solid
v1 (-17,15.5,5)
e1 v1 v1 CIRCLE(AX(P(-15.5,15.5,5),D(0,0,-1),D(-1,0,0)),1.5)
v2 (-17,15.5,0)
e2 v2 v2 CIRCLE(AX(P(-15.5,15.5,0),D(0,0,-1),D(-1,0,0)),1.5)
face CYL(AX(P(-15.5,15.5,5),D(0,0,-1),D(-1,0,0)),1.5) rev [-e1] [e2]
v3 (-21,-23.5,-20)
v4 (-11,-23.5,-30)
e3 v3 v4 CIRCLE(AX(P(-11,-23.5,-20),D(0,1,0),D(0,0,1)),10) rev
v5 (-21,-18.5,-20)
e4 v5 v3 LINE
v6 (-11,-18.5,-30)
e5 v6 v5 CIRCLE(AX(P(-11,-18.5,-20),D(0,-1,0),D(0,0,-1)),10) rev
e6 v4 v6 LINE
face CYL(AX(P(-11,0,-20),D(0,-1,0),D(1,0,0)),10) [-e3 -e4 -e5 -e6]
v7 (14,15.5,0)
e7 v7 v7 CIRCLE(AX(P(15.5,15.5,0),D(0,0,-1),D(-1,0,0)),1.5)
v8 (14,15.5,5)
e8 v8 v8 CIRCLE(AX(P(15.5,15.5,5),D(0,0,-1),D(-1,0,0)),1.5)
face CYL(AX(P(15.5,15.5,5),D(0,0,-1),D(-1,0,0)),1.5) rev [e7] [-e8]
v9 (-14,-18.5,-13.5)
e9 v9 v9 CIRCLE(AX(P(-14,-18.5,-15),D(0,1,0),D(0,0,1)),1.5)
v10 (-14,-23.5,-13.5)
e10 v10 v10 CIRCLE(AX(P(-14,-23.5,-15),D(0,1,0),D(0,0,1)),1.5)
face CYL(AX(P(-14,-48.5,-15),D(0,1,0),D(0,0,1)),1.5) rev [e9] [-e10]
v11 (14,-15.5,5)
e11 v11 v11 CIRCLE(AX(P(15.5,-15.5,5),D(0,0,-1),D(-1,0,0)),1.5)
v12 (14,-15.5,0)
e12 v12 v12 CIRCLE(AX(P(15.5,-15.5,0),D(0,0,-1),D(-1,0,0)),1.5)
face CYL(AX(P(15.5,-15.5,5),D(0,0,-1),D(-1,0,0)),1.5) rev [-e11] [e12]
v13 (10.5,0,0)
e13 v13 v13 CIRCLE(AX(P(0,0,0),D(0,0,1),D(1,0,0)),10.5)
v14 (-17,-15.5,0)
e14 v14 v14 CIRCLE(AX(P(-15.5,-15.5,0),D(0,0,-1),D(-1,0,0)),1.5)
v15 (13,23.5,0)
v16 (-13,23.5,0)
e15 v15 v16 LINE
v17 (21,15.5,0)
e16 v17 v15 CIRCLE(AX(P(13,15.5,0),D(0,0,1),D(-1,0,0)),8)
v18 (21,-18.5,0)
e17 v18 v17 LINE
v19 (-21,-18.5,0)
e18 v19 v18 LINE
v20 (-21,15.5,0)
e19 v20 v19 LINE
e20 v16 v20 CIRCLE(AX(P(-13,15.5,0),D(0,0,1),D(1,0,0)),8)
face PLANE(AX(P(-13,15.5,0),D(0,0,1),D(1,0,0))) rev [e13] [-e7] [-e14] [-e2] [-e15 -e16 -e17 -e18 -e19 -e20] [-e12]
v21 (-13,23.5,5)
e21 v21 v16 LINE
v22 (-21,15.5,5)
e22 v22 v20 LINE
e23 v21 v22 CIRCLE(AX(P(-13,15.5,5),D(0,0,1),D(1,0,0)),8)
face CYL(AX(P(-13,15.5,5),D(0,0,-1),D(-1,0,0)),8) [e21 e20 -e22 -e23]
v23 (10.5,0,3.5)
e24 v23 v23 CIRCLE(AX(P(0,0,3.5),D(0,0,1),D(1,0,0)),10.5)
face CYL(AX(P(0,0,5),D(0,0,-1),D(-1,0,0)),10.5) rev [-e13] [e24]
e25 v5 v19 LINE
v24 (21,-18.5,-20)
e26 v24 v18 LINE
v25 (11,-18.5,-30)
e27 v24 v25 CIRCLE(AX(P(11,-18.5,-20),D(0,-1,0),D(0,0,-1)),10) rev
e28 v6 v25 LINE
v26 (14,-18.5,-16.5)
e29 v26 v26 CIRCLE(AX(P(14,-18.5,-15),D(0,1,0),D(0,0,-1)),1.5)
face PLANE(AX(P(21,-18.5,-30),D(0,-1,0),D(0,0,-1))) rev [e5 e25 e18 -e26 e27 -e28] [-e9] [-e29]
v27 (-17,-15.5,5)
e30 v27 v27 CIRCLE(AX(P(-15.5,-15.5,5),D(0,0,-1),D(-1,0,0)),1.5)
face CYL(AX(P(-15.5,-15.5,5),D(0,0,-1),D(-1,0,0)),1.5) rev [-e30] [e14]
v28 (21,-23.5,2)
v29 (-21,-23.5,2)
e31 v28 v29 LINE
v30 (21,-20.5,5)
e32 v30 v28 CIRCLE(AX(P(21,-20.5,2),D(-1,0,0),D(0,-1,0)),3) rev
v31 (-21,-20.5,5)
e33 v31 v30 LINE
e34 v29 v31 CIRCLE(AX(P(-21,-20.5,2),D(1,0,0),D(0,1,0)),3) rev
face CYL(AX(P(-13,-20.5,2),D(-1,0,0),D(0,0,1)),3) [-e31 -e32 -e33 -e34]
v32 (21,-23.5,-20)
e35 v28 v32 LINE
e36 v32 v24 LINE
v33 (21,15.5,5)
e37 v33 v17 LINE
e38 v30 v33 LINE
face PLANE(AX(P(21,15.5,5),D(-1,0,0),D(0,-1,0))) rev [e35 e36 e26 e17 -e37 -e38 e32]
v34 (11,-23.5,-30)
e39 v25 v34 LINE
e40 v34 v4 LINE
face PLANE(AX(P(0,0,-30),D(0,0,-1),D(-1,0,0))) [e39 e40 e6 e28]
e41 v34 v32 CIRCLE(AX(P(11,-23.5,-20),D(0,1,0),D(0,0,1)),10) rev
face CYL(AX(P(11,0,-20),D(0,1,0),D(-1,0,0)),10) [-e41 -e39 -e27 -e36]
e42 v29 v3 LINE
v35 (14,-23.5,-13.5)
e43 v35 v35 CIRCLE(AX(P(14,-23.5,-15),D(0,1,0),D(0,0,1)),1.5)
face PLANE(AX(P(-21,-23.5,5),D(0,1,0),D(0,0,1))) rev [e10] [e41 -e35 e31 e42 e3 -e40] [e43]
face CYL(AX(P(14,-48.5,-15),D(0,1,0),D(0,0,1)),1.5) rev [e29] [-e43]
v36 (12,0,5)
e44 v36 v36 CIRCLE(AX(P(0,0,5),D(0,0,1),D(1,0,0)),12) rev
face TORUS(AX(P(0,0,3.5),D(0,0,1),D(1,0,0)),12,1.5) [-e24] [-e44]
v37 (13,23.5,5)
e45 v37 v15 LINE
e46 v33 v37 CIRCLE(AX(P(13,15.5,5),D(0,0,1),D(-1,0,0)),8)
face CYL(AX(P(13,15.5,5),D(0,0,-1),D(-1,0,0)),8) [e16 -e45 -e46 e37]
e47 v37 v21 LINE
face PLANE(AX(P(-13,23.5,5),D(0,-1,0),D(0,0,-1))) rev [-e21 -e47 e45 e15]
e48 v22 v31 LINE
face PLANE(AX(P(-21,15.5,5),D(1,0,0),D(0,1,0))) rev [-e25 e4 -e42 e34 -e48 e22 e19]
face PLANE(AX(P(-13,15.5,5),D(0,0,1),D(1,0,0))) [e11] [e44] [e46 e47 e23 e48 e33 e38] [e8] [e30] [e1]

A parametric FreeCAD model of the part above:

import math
import FreeCAD as App
import Part
import Sketcher

V = App.Vector
Q = App.Units.Quantity


def edges_at(feature, points):
    """Names of the edges that pass closest to the given points."""
    edges = feature.Shape.Edges
    near = lambda p: min(range(len(edges)), key=lambda i: edges[i].distToShape(Part.Vertex(*p))[0])
    return sorted({f"Edge{near(p) + 1}" for p in points})

doc = App.newDocument("Part")
params = doc.addObject("Spreadsheet::Sheet", "Params")
for row, (alias, value) in enumerate([
    ("sketch1_diameter", "21 mm"),
    ("sketch1_radius", "8 mm"),
    ("sketch1_width", "26 mm"),
    ("sketch1_height", "39 mm"),
    ("pad1_length", "5 mm"),
    ("sketch2_width", "42 mm"),
    ("sketch2_height", "5 mm"),
    ("pad2_length", "30 mm"),
    ("sketch3_diameter", "3 mm"),
    ("pocket1_length", "30 mm"),
    ("fillet_radius", "10 mm"),
    ("fillet2_radius", "3 mm"),
    ("sketch4_diameter", "3 mm"),
    ("fillet3_radius", "1.5 mm"),
], start=1):
    params.set(f"A{row}", alias)
    params.set(f"B{row}", "=" + value)
    params.setAlias(f"B{row}", alias)

body = doc.addObject("PartDesign::Body", "Body")

sketch1 = body.newObject("Sketcher::SketchObject", "Sketch")
sketch1.AttachmentSupport = (doc.getObject("XY_Plane"), [""])
sketch1.MapMode = "FlatFace"
sketch1.addGeometry(Part.LineSegment(V(13, 23.5, 0), V(-13, 23.5, 0)), False)
sketch1.addGeometry(Part.ArcOfCircle(Part.Circle(V(-13, 15.5, 0), V(0, 0, 1), 8), math.radians(90), math.radians(180)), False)
sketch1.addGeometry(Part.LineSegment(V(-21, 15.5, 0), V(-21, -23.5, 0)), False)
sketch1.addGeometry(Part.LineSegment(V(-21, -23.5, 0), V(21, -23.5, 0)), False)
sketch1.addGeometry(Part.LineSegment(V(21, -23.5, 0), V(21, 15.5, 0)), False)
sketch1.addGeometry(Part.ArcOfCircle(Part.Circle(V(13, 15.5, 0), V(0, 0, 1), 8), math.radians(0), math.radians(90)), False)
sketch1.addGeometry(Part.Circle(V(0, 0, 0), V(0, 0, 1), 10.5), False)
sketch1.addConstraint(Sketcher.Constraint("Tangent", 0, 2, 1, 1))
sketch1.addConstraint(Sketcher.Constraint("Tangent", 1, 2, 2, 1))
sketch1.addConstraint(Sketcher.Constraint("Coincident", 2, 2, 3, 1))
sketch1.addConstraint(Sketcher.Constraint("Coincident", 3, 2, 4, 1))
sketch1.addConstraint(Sketcher.Constraint("Tangent", 4, 2, 5, 1))
sketch1.addConstraint(Sketcher.Constraint("Tangent", 5, 2, 0, 1))
sketch1.addConstraint(Sketcher.Constraint("Horizontal", 0))
sketch1.addConstraint(Sketcher.Constraint("Vertical", 2))
sketch1.addConstraint(Sketcher.Constraint("Horizontal", 3))
sketch1.addConstraint(Sketcher.Constraint("Vertical", 4))
sketch1.addConstraint(Sketcher.Constraint("Coincident", 6, 3, -1, 1))
sketch1.addConstraint(Sketcher.Constraint("Equal", 1, 5))
sketch1.addConstraint(Sketcher.Constraint("Diameter", 6, Q("21 mm")))
sketch1.addConstraint(Sketcher.Constraint("Radius", 1, Q("8 mm")))
sketch1.addConstraint(Sketcher.Constraint("DistanceX", 0, 2, 0, 1, Q("26 mm")))
sketch1.addConstraint(Sketcher.Constraint("DistanceY", 2, 2, 2, 1, Q("39 mm")))
sketch1.addConstraint(Sketcher.Constraint("DistanceX", 1, 3, -1, 1, Q("13 mm")))
sketch1.addConstraint(Sketcher.Constraint("DistanceY", -1, 1, 1, 3, Q("15.5 mm")))
sketch1.setExpression("Constraints[12]", "Params.sketch1_diameter")
sketch1.setExpression("Constraints[13]", "Params.sketch1_radius")
sketch1.setExpression("Constraints[14]", "Params.sketch1_width")
sketch1.setExpression("Constraints[15]", "Params.sketch1_height")
pad1 = body.newObject("PartDesign::Pad", "Pad")
pad1.Profile = sketch1
pad1.setExpression("Length", "Params.pad1_length")

sketch2 = body.newObject("Sketcher::SketchObject", "Sketch001")
sketch2.AttachmentSupport = (doc.getObject("XY_Plane"), [""])
sketch2.MapMode = "FlatFace"
sketch2.addGeometry(Part.LineSegment(V(21, -18.5, 0), V(21, -23.5, 0)), False)
sketch2.addGeometry(Part.LineSegment(V(21, -23.5, 0), V(-21, -23.5, 0)), False)
sketch2.addGeometry(Part.LineSegment(V(-21, -23.5, 0), V(-21, -18.5, 0)), False)
sketch2.addGeometry(Part.LineSegment(V(-21, -18.5, 0), V(21, -18.5, 0)), False)
sketch2.addConstraint(Sketcher.Constraint("Coincident", 0, 2, 1, 1))
sketch2.addConstraint(Sketcher.Constraint("Coincident", 1, 2, 2, 1))
sketch2.addConstraint(Sketcher.Constraint("Coincident", 2, 2, 3, 1))
sketch2.addConstraint(Sketcher.Constraint("Coincident", 3, 2, 0, 1))
sketch2.addConstraint(Sketcher.Constraint("Vertical", 0))
sketch2.addConstraint(Sketcher.Constraint("Horizontal", 1))
sketch2.addConstraint(Sketcher.Constraint("Vertical", 2))
sketch2.addConstraint(Sketcher.Constraint("Horizontal", 3))
sketch2.addConstraint(Sketcher.Constraint("DistanceX", 1, 2, 1, 1, Q("42 mm")))
sketch2.addConstraint(Sketcher.Constraint("DistanceY", 0, 2, 0, 1, Q("5 mm")))
sketch2.addConstraint(Sketcher.Constraint("DistanceX", -1, 1, 0, 2, Q("21 mm")))
sketch2.addConstraint(Sketcher.Constraint("DistanceY", 0, 2, -1, 1, Q("23.5 mm")))
sketch2.setExpression("Constraints[8]", "Params.sketch2_width")
sketch2.setExpression("Constraints[9]", "Params.sketch2_height")
pad2 = body.newObject("PartDesign::Pad", "Pad001")
pad2.Profile = sketch2
pad2.setExpression("Length", "Params.pad2_length")
pad2.Reversed = True

sketch3 = body.newObject("Sketcher::SketchObject", "Sketch002")
sketch3.AttachmentSupport = (doc.getObject("XZ_Plane"), [""])
sketch3.MapMode = "FlatFace"
sketch3.AttachmentOffset = App.Placement(V(0, 0, 18.5), App.Rotation())
sketch3.addGeometry(Part.Circle(V(-14, -15, 0), V(0, 0, 1), 1.5), False)
sketch3.addGeometry(Part.Circle(V(14, -15, 0), V(0, 0, 1), 1.5), False)
sketch3.addConstraint(Sketcher.Constraint("Equal", 0, 1))
sketch3.addConstraint(Sketcher.Constraint("Symmetric", 0, 3, 1, 3, -2))
sketch3.addConstraint(Sketcher.Constraint("Diameter", 0, Q("3 mm")))
sketch3.addConstraint(Sketcher.Constraint("DistanceX", 0, 3, -1, 1, Q("14 mm")))
sketch3.addConstraint(Sketcher.Constraint("DistanceY", 0, 3, -1, 1, Q("15 mm")))
sketch3.setExpression("Constraints[2]", "Params.sketch3_diameter")
pocket1 = body.newObject("PartDesign::Pocket", "Pocket")
pocket1.Profile = sketch3
pocket1.setExpression("Length", "Params.pocket1_length")
pocket1.Reversed = True
doc.recompute()

fillet = body.newObject("PartDesign::Fillet", "Fillet")
fillet.Base = (pocket1, edges_at(pocket1, [(-21, -21, -30), (21, -21, -30)]))
fillet.setExpression("Radius", "Params.fillet_radius")
doc.recompute()

fillet2 = body.newObject("PartDesign::Fillet", "Fillet001")
fillet2.Base = (fillet, edges_at(fillet, [(0, -23.5, 5)]))
fillet2.setExpression("Radius", "Params.fillet2_radius")

sketch4 = body.newObject("Sketcher::SketchObject", "Sketch003")
sketch4.AttachmentSupport = (doc.getObject("XY_Plane"), [""])
sketch4.MapMode = "FlatFace"
sketch4.addGeometry(Part.Circle(V(15.5, 15.5, 0), V(0, 0, 1), 1.5), False)
sketch4.addGeometry(Part.Circle(V(-15.5, 15.5, 0), V(0, 0, 1), 1.5), False)
sketch4.addGeometry(Part.Circle(V(15.5, -15.5, 0), V(0, 0, 1), 1.5), False)
sketch4.addGeometry(Part.Circle(V(-15.5, -15.5, 0), V(0, 0, 1), 1.5), False)
sketch4.addConstraint(Sketcher.Constraint("Equal", 0, 1))
sketch4.addConstraint(Sketcher.Constraint("Equal", 1, 2))
sketch4.addConstraint(Sketcher.Constraint("Equal", 2, 3))
sketch4.addConstraint(Sketcher.Constraint("Symmetric", 1, 3, 2, 3, -1, 1))
sketch4.addConstraint(Sketcher.Constraint("Symmetric", 0, 3, 3, 3, -1, 1))
sketch4.addConstraint(Sketcher.Constraint("Symmetric", 0, 3, 1, 3, -2))
sketch4.addConstraint(Sketcher.Constraint("Diameter", 0, Q("3 mm")))
sketch4.addConstraint(Sketcher.Constraint("DistanceX", 1, 3, 0, 3, Q("31 mm")))
sketch4.addConstraint(Sketcher.Constraint("DistanceY", 2, 3, 0, 3, Q("31 mm")))
sketch4.setExpression("Constraints[6]", "Params.sketch4_diameter")
pocket2 = body.newObject("PartDesign::Pocket", "Pocket001")
pocket2.Profile = sketch4
pocket2.Type = "ThroughAll"
pocket2.Reversed = True
doc.recompute()

fillet3 = body.newObject("PartDesign::Fillet", "Fillet002")
fillet3.Base = (pocket2, edges_at(pocket2, [(-10.5, 0, 5)]))
fillet3.setExpression("Radius", "Params.fillet3_radius")

doc.recompute()
